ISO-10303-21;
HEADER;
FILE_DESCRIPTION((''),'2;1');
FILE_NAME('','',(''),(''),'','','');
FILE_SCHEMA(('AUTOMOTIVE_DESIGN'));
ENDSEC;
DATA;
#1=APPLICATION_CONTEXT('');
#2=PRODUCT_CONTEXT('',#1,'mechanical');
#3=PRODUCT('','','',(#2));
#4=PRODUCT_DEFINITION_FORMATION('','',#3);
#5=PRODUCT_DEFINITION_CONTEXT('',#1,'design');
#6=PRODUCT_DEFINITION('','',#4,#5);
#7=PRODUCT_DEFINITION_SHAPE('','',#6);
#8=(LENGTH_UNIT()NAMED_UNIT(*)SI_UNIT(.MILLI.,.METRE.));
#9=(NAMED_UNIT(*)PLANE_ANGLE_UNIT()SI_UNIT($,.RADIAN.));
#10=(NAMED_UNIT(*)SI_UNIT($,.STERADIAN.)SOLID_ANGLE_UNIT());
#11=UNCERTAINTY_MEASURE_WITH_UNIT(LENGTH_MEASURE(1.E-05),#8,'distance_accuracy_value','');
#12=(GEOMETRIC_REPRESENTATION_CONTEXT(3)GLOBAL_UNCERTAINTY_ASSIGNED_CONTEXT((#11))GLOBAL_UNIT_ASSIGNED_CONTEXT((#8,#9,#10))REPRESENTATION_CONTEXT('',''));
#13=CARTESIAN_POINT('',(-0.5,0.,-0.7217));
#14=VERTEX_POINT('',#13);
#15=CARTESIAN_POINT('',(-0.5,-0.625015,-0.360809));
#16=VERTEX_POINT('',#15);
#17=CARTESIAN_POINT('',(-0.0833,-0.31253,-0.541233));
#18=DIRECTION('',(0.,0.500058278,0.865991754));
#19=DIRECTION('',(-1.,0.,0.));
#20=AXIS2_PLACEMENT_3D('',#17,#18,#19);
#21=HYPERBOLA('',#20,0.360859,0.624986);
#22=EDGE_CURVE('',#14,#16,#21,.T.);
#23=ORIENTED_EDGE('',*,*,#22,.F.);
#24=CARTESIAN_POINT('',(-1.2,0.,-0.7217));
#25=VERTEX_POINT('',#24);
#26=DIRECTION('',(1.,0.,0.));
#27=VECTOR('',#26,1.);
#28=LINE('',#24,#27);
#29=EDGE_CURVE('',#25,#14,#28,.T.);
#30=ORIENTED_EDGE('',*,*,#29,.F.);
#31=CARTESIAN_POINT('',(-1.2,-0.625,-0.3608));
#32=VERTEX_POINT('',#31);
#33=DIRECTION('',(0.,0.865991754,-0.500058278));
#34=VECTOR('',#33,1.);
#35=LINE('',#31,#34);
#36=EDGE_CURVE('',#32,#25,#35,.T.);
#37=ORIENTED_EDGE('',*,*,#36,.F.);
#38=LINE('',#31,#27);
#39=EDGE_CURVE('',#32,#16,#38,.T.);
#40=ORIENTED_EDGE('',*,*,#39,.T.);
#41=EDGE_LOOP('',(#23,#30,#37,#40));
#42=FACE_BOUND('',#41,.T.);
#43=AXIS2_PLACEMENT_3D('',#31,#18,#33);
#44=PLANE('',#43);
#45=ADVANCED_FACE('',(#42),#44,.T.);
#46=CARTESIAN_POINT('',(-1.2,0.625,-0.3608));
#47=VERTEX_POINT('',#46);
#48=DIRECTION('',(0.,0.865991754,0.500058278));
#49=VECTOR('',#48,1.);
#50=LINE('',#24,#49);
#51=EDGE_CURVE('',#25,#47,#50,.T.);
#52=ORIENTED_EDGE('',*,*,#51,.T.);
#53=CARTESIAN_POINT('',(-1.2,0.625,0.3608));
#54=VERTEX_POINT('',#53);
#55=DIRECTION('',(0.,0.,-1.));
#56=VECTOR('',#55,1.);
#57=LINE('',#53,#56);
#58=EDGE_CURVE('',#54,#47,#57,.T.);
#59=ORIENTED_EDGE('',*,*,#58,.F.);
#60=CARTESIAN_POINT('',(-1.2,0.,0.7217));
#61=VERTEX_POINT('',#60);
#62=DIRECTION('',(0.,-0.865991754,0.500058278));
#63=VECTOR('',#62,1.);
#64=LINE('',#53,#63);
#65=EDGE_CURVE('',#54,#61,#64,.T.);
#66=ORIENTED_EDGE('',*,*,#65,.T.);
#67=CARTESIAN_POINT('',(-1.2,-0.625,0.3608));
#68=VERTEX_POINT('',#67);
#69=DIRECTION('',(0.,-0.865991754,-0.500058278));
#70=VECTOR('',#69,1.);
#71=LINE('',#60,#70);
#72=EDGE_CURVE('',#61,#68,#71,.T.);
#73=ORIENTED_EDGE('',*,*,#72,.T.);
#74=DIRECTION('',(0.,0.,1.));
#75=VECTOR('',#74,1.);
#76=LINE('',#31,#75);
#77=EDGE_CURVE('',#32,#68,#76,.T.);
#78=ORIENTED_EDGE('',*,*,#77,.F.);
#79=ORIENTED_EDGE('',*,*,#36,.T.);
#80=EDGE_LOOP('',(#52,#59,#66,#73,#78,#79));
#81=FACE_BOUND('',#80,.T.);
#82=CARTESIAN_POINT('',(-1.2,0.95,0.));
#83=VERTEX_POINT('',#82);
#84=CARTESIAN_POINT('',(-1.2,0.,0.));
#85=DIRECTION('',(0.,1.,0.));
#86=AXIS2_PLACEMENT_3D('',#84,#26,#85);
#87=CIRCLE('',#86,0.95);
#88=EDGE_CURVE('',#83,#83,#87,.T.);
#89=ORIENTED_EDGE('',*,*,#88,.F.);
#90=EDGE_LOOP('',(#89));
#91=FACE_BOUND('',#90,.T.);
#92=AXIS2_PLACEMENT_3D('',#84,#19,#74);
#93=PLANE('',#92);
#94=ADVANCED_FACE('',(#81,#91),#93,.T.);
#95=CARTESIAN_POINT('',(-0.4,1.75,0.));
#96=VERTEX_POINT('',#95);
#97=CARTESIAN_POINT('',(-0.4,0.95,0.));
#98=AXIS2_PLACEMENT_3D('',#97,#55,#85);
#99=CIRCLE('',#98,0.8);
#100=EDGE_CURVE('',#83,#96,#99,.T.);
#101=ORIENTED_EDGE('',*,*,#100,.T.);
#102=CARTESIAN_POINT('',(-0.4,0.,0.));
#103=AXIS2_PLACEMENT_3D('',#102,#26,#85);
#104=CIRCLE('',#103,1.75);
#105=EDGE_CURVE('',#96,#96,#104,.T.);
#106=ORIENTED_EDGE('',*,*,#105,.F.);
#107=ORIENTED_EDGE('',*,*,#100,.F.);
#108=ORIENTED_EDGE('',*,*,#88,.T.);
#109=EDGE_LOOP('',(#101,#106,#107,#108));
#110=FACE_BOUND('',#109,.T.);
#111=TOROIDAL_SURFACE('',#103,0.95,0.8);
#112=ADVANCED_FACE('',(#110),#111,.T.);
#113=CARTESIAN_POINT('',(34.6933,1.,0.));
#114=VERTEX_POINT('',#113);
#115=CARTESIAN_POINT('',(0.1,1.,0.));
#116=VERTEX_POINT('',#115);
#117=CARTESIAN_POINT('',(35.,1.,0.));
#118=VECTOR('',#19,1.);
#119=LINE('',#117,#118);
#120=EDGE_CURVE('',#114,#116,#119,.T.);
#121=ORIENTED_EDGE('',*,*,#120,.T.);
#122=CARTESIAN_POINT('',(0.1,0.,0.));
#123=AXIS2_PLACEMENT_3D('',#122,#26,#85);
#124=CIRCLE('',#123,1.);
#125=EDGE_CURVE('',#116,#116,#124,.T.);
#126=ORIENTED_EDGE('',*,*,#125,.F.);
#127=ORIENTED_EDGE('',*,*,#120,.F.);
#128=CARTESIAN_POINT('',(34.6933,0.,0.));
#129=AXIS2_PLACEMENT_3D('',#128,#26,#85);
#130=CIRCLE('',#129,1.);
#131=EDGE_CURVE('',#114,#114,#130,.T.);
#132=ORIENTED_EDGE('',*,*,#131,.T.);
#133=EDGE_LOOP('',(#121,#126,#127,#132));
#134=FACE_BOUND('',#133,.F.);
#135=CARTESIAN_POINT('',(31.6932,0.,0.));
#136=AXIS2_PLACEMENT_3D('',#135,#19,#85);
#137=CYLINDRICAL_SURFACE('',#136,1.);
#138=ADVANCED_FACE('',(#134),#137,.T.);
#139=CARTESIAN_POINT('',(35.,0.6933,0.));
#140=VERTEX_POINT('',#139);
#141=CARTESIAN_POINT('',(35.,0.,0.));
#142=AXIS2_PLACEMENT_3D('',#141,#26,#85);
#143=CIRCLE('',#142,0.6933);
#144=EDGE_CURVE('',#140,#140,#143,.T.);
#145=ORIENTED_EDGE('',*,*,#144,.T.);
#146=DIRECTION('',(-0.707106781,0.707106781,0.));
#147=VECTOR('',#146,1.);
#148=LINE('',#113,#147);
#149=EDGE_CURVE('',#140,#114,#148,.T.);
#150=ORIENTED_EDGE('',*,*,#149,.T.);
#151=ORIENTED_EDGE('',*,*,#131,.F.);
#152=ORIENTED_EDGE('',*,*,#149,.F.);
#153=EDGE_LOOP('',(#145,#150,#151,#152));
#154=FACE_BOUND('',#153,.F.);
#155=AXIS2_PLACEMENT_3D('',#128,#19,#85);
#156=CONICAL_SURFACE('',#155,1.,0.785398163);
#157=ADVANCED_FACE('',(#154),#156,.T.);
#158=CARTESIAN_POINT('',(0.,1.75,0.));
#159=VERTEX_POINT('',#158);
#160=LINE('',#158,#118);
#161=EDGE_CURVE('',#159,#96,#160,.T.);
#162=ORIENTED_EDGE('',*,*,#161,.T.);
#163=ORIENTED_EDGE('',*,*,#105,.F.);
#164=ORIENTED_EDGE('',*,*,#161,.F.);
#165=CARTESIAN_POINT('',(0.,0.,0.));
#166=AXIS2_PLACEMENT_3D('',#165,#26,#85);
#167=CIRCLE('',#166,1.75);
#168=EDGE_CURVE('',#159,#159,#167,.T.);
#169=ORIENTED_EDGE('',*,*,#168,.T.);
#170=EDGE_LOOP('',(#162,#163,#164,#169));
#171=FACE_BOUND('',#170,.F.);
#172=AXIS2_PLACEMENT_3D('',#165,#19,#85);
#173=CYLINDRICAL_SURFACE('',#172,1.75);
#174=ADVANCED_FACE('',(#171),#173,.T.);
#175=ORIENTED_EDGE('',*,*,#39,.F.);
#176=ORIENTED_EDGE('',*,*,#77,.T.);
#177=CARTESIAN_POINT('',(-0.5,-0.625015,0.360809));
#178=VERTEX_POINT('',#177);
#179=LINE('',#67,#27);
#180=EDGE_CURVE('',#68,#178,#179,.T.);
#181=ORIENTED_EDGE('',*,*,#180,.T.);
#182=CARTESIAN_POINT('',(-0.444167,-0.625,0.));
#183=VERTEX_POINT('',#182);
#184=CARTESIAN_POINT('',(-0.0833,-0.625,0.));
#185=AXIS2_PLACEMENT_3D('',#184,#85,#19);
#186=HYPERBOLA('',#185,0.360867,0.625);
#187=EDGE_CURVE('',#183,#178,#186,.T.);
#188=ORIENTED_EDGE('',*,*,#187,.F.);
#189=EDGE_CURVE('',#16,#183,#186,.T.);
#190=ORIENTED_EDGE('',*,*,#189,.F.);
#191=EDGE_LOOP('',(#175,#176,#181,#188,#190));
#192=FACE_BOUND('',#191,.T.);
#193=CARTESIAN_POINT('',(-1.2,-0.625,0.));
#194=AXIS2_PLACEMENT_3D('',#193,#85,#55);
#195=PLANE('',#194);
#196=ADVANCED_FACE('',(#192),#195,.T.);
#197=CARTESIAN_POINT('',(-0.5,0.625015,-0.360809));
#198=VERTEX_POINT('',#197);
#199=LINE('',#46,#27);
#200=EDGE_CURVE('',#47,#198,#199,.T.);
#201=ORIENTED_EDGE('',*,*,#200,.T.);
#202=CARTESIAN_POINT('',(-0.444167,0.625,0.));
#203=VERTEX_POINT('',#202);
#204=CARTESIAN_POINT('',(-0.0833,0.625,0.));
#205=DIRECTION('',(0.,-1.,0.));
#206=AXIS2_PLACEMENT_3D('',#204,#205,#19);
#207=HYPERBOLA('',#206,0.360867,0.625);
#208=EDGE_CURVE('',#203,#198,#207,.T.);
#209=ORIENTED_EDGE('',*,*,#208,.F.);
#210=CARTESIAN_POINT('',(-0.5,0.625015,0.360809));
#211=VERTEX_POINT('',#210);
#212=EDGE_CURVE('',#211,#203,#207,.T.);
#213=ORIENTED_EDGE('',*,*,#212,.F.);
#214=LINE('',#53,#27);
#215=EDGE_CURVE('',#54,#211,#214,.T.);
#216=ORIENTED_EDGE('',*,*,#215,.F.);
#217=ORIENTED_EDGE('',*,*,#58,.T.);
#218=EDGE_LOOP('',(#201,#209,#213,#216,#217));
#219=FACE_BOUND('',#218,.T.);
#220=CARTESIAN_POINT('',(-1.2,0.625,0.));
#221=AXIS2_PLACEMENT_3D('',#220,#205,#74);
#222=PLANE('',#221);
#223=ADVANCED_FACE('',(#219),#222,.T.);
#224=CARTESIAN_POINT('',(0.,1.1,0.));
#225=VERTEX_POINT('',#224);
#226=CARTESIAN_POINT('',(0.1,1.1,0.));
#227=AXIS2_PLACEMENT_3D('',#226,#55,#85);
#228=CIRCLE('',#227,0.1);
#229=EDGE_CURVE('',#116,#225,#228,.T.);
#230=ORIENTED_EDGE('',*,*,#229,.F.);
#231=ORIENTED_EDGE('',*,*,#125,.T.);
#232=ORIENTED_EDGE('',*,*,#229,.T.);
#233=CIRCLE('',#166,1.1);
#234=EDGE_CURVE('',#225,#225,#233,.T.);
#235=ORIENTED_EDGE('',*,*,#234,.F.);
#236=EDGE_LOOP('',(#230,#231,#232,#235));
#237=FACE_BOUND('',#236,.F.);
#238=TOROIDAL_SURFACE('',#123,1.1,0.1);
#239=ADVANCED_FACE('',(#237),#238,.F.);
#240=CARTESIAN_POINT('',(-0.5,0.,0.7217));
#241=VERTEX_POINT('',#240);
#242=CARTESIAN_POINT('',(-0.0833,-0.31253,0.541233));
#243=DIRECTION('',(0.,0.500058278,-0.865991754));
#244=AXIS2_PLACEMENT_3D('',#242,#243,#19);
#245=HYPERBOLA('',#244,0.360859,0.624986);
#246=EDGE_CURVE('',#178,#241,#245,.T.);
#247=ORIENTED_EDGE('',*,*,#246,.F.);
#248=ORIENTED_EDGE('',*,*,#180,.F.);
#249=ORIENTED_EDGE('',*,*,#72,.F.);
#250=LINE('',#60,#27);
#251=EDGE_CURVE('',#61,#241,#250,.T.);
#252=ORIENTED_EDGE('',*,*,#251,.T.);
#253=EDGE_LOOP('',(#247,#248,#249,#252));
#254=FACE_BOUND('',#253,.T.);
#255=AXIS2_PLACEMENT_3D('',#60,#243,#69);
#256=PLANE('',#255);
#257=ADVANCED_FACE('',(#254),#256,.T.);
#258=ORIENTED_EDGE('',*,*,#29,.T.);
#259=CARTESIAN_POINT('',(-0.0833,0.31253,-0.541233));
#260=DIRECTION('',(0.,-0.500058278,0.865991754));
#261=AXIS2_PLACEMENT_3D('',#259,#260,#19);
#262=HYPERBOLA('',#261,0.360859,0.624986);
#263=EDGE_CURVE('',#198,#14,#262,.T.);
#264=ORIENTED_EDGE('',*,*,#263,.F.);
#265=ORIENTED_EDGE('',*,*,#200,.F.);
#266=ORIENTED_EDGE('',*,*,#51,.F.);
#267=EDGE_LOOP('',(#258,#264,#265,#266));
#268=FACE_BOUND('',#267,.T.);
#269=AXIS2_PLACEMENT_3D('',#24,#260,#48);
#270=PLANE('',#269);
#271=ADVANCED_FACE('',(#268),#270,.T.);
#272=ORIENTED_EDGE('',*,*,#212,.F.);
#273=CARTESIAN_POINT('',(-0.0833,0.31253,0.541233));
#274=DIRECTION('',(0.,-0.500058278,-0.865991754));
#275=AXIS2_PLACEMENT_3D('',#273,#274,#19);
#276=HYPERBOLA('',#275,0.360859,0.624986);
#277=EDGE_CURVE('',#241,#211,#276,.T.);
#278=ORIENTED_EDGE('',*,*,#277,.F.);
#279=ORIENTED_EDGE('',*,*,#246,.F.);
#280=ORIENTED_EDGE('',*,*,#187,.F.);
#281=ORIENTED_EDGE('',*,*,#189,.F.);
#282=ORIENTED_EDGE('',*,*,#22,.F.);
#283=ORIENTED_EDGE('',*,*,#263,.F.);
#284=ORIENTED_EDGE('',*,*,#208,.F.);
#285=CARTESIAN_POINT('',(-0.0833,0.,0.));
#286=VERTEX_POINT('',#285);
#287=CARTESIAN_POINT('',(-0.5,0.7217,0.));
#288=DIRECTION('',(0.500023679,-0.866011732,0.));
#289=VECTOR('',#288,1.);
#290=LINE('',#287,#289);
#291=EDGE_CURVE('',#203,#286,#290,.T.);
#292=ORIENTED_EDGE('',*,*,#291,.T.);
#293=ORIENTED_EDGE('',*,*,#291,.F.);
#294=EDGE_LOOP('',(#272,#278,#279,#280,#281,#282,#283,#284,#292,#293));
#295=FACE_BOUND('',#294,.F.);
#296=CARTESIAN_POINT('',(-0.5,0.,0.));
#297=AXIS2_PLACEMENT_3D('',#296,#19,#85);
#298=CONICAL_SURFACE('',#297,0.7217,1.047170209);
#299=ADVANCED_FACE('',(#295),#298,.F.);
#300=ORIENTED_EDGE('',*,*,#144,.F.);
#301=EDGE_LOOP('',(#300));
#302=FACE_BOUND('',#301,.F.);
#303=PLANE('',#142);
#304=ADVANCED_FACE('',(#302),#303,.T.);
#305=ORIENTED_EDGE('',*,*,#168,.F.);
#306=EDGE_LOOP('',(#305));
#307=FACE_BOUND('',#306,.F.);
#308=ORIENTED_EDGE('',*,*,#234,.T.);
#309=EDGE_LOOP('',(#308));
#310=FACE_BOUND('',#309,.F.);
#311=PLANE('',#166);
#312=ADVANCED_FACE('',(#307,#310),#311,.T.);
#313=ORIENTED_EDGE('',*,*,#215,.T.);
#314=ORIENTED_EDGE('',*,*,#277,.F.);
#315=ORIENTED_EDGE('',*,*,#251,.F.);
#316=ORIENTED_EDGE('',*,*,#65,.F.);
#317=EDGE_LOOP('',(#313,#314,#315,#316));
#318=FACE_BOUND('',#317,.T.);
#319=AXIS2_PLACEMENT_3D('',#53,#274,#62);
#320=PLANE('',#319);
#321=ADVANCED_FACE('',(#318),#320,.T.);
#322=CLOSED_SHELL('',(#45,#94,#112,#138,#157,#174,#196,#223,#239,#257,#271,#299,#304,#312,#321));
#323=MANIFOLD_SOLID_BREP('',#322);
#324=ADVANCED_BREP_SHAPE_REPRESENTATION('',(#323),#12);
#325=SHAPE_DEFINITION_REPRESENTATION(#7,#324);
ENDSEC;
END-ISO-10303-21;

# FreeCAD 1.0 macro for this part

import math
import FreeCAD as App
import Part
import Sketcher


def edges_at(feature, points):
    """Names of the edges that pass closest to the given points."""
    edges = feature.Shape.Edges
    near = lambda p: min(range(len(edges)), key=lambda i: edges[i].distToShape(Part.Vertex(*p))[0])
    return sorted({f"Edge{near(p) + 1}" for p in points})

doc = App.newDocument("Part")
body = doc.addObject("PartDesign::Body", "Body")

sketch1 = doc.addObject("Sketcher::SketchObject", "Sketch")
body.addObject(sketch1)
sketch1.AttachmentSupport = (doc.XY_Plane, [""])
sketch1.MapMode = "FlatFace"
sketch1.addGeometry(Part.LineSegment(App.Vector(-0.5, 0.7, 0), App.Vector(-0.1, 0, 0)), False)
sketch1.addGeometry(Part.LineSegment(App.Vector(-0.1, 0, 0), App.Vector(35, 0, 0)), False)
sketch1.addGeometry(Part.LineSegment(App.Vector(35, 0, 0), App.Vector(35, 1, 0)), False)
sketch1.addGeometry(Part.LineSegment(App.Vector(35, 1, 0), App.Vector(0, 1, 0)), False)
sketch1.addGeometry(Part.LineSegment(App.Vector(0, 1, 0), App.Vector(0, 1.8, 0)), False)
sketch1.addGeometry(Part.LineSegment(App.Vector(0, 1.8, 0), App.Vector(-1.2, 1.8, 0)), False)
sketch1.addGeometry(Part.LineSegment(App.Vector(-1.2, 1.8, 0), App.Vector(-1.2, 0.7, 0)), False)
sketch1.addGeometry(Part.LineSegment(App.Vector(-1.2, 0.7, 0), App.Vector(-0.5, 0.7, 0)), False)
sketch1.addConstraint(Sketcher.Constraint("Coincident", 0, 2, 1, 1))
sketch1.addConstraint(Sketcher.Constraint("Coincident", 1, 2, 2, 1))
sketch1.addConstraint(Sketcher.Constraint("Coincident", 2, 2, 3, 1))
sketch1.addConstraint(Sketcher.Constraint("Coincident", 3, 2, 4, 1))
sketch1.addConstraint(Sketcher.Constraint("Coincident", 4, 2, 5, 1))
sketch1.addConstraint(Sketcher.Constraint("Coincident", 5, 2, 6, 1))
sketch1.addConstraint(Sketcher.Constraint("Coincident", 6, 2, 7, 1))
sketch1.addConstraint(Sketcher.Constraint("Coincident", 7, 2, 0, 1))
sketch1.addConstraint(Sketcher.Constraint("Horizontal", 1))
sketch1.addConstraint(Sketcher.Constraint("Vertical", 2))
sketch1.addConstraint(Sketcher.Constraint("Horizontal", 3))
sketch1.addConstraint(Sketcher.Constraint("Vertical", 4))
sketch1.addConstraint(Sketcher.Constraint("Horizontal", 5))
sketch1.addConstraint(Sketcher.Constraint("Vertical", 6))
sketch1.addConstraint(Sketcher.Constraint("Horizontal", 7))
sketch1.addConstraint(Sketcher.Constraint("PointOnObject", 0, 2, -1))
sketch1.addConstraint(Sketcher.Constraint("PointOnObject", 3, 2, -2))
sketch1.addConstraint(Sketcher.Constraint("DistanceX", 3, 2, 3, 1, 35.0))
sketch1.addConstraint(Sketcher.Constraint("DistanceX", 5, 2, 5, 1, 1.2))
sketch1.addConstraint(Sketcher.Constraint("DistanceX", 7, 1, 7, 2, 0.7))
sketch1.addConstraint(Sketcher.Constraint("DistanceY", 2, 1, 2, 2, 1.0))
sketch1.addConstraint(Sketcher.Constraint("DistanceY", 4, 1, 4, 2, 0.75))
sketch1.addConstraint(Sketcher.Constraint("DistanceX", 1, 1, 1, 2, 35.0833))
sketch1.addConstraint(Sketcher.Constraint("DistanceY", 6, 2, 6, 1, 1.0283))
revolution = doc.addObject("PartDesign::Revolution", "Revolution")
body.addObject(revolution)
revolution.Profile = sketch1
revolution.ReferenceAxis = (sketch1, ["H_Axis"])
revolution.Angle = 360

sketch2 = doc.addObject("Sketcher::SketchObject", "Sketch001")
body.addObject(sketch2)
sketch2.AttachmentSupport = (doc.YZ_Plane, [""])
sketch2.MapMode = "FlatFace"
sketch2.AttachmentOffset = App.Placement(App.Vector(0, 0, -1.2), App.Rotation())
sketch2.addGeometry(Part.LineSegment(App.Vector(0.6, 0.4, 0), App.Vector(0, 0.7, 0)), False)
sketch2.addGeometry(Part.ArcOfCircle(Part.Circle(App.Vector(0, 0, 0), App.Vector(0, 0, 1), 0.7), math.radians(30), math.radians(90)), False)
sketch2.addGeometry(Part.ArcOfCircle(Part.Circle(App.Vector(0, 0, 0), App.Vector(0, 0, 1), 0.7), math.radians(90), math.radians(150)), False)
sketch2.addGeometry(Part.LineSegment(App.Vector(0, 0.7, 0), App.Vector(-0.6, 0.4, 0)), False)
sketch2.addGeometry(Part.ArcOfCircle(Part.Circle(App.Vector(0, 0, 0), App.Vector(0, 0, 1), 0.7), math.radians(-30), math.radians(30)), False)
sketch2.addGeometry(Part.LineSegment(App.Vector(0.6, 0.4, 0), App.Vector(0.6, -0.4, 0)), False)
sketch2.addGeometry(Part.LineSegment(App.Vector(-0.6, 0.4, 0), App.Vector(-0.6, -0.4, 0)), False)
sketch2.addGeometry(Part.ArcOfCircle(Part.Circle(App.Vector(0, 0, 0), App.Vector(0, 0, 1), 0.7), math.radians(150), math.radians(210)), False)
sketch2.addGeometry(Part.LineSegment(App.Vector(-0.6, -0.4, 0), App.Vector(0, -0.7, 0)), False)
sketch2.addGeometry(Part.ArcOfCircle(Part.Circle(App.Vector(0, 0, 0), App.Vector(0, 0, 1), 0.7), math.radians(-150), math.radians(-90)), False)
sketch2.addGeometry(Part.ArcOfCircle(Part.Circle(App.Vector(0, 0, 0), App.Vector(0, 0, 1), 0.7), math.radians(-90), math.radians(-30)), False)
sketch2.addGeometry(Part.LineSegment(App.Vector(0, -0.7, 0), App.Vector(0.6, -0.4, 0)), False)
sketch2.addConstraint(Sketcher.Constraint("Coincident", 0, 1, 1, 1))
sketch2.addConstraint(Sketcher.Constraint("Coincident", 1, 2, 0, 2))
sketch2.addConstraint(Sketcher.Constraint("Coincident", 2, 1, 3, 1))
sketch2.addConstraint(Sketcher.Constraint("Coincident", 3, 2, 2, 2))
sketch2.addConstraint(Sketcher.Constraint("Coincident", 4, 1, 5, 2))
sketch2.addConstraint(Sketcher.Constraint("Coincident", 5, 1, 4, 2))
sketch2.addConstraint(Sketcher.Constraint("Coincident", 6, 1, 7, 1))
sketch2.addConstraint(Sketcher.Constraint("Coincident", 7, 2, 6, 2))
sketch2.addConstraint(Sketcher.Constraint("Coincident", 8, 1, 9, 1))
sketch2.addConstraint(Sketcher.Constraint("Coincident", 9, 2, 8, 2))
sketch2.addConstraint(Sketcher.Constraint("Coincident", 10, 1, 11, 1))
sketch2.addConstraint(Sketcher.Constraint("Coincident", 11, 2, 10, 2))
sketch2.addConstraint(Sketcher.Constraint("Vertical", 5))
sketch2.addConstraint(Sketcher.Constraint("Vertical", 6))
sketch2.addConstraint(Sketcher.Constraint("Coincident", 1, 3, -1, 1))
sketch2.addConstraint(Sketcher.Constraint("Coincident", 2, 3, -1, 1))
sketch2.addConstraint(Sketcher.Constraint("Coincident", 4, 3, -1, 1))
sketch2.addConstraint(Sketcher.Constraint("Coincident", 7, 3, -1, 1))
sketch2.addConstraint(Sketcher.Constraint("Coincident", 9, 3, -1, 1))
sketch2.addConstraint(Sketcher.Constraint("Coincident", 10, 3, -1, 1))
sketch2.addConstraint(Sketcher.Constraint("Coincident", 2, 1, 1, 2))
sketch2.addConstraint(Sketcher.Constraint("Coincident", 5, 1, 0, 1))
sketch2.addConstraint(Sketcher.Constraint("Coincident", 6, 1, 3, 2))
sketch2.addConstraint(Sketcher.Constraint("Coincident", 8, 1, 7, 2))
sketch2.addConstraint(Sketcher.Constraint("Coincident", 10, 1, 9, 2))
sketch2.addConstraint(Sketcher.Constraint("PointOnObject", 1, 2, -2))
sketch2.addConstraint(Sketcher.Constraint("PointOnObject", 9, 2, -2))
sketch2.addConstraint(Sketcher.Constraint("Parallel", 0, 8))
sketch2.addConstraint(Sketcher.Constraint("Parallel", 3, 11))
sketch2.addConstraint(Sketcher.Constraint("Radius", 1, 0.7217))
sketch2.addConstraint(Sketcher.Constraint("DistanceY", 5, 2, 5, 1, 0.7216))
pad1 = doc.addObject("PartDesign::Pad", "Pad")
body.addObject(pad1)
pad1.Profile = sketch2
pad1.Type = "UpToFirst"
doc.recompute()

fillet = doc.addObject("PartDesign::Fillet", "Fillet")
body.addObject(fillet)
fillet.Base = (pad1, edges_at(pad1, [(-1.2, -1.75, 0)]))
fillet.Radius = 0.8
doc.recompute()

chamfer = doc.addObject("PartDesign::Chamfer", "Chamfer")
body.addObject(chamfer)
chamfer.Base = (fillet, edges_at(fillet, [(35, -1, 0)]))
chamfer.ChamferType = "Two distances"
chamfer.Size = 0.3067
chamfer.Size2 = 0.3067
doc.recompute()

fillet2 = doc.addObject("PartDesign::Fillet", "Fillet001")
body.addObject(fillet2)
fillet2.Base = (chamfer, edges_at(chamfer, [(0, -1, 0)]))
fillet2.Radius = 0.1

doc.recompute()
